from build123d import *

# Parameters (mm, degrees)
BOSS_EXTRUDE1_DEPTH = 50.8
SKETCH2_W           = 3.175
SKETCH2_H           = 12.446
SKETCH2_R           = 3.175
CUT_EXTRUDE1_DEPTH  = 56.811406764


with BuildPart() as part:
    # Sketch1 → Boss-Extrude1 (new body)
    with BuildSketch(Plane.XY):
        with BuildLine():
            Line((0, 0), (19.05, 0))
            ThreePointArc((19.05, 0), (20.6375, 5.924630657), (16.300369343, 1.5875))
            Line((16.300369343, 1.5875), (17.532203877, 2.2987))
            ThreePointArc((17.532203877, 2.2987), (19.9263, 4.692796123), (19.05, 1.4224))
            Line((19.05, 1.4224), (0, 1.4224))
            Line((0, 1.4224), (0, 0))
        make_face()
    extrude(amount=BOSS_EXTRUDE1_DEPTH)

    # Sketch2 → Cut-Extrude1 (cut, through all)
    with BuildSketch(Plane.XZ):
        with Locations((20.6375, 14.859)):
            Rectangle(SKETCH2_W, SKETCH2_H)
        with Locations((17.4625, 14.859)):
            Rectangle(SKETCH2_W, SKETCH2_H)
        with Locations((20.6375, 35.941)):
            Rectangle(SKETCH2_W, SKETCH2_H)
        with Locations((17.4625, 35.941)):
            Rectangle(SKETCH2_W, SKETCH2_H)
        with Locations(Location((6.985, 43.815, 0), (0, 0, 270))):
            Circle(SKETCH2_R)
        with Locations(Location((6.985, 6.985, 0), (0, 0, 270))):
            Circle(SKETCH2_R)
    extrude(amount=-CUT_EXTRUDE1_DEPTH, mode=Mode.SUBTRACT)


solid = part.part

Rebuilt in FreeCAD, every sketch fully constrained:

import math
import FreeCAD as App
import Part
import Sketcher

V = App.Vector
Q = App.Units.Quantity

doc = App.newDocument("Part")
params = doc.addObject("Spreadsheet::Sheet", "Params")
for row, (alias, value) in enumerate([
    ("sketch1_radius", "0.125 in"),
    ("sketch1_radius2", "0.069 in"),
    ("sketch1_width", "0.75 in"),
    ("pad1_length", "2 in"),
    ("sketch2_diameter", "0.25 in"),
    ("sketch2_width", "0.25 in"),
    ("sketch2_height", "0.49 in"),
], start=1):
    params.set(f"A{row}", alias)
    params.set(f"B{row}", "=" + value)
    params.setAlias(f"B{row}", alias)

body = doc.addObject("PartDesign::Body", "Body")

# Sketch on XY plane
sketch1 = body.newObject("Sketcher::SketchObject", "Sketch")
sketch1.AttachmentSupport = (doc.getObject("XY_Plane"), [""])
sketch1.MapMode = "FlatFace"
sketch1.addGeometry([
    Part.LineSegment(V(0, 0, 0), V(19.1, 0, 0)),  # 0
    Part.ArcOfCircle(Part.Circle(V(19.1, 3.2, 0), V(0, 0, 1), 3.2), math.radians(-90), math.radians(210)),  # 1
    Part.LineSegment(V(16.3, 1.6, 0), V(17.5, 2.3, 0)),  # 2
    Part.ArcOfCircle(Part.Circle(V(19.1, 3.2, 0), V(0, 0, 1), 1.8), math.radians(-90), math.radians(210)),  # 3
    Part.LineSegment(V(19.1, 1.4, 0), V(0, 1.4, 0)),  # 4
    Part.LineSegment(V(0, 1.4, 0), V(0, 0, 0)),  # 5
], False)
sketch1.addConstraint([
    Sketcher.Constraint("Tangent", 0, 2, 1, 1),
    Sketcher.Constraint("Coincident", 1, 2, 2, 1),
    Sketcher.Constraint("Coincident", 2, 2, 3, 2),
    Sketcher.Constraint("Tangent", 3, 1, 4, 1),
    Sketcher.Constraint("Coincident", 4, 2, 5, 1),
    Sketcher.Constraint("Coincident", 5, 2, 0, 1),
    Sketcher.Constraint("Horizontal", 0),
    Sketcher.Constraint("Horizontal", 4),
    Sketcher.Constraint("Vertical", 5),
    Sketcher.Constraint("Coincident", 5, 2, -1, 1),
    Sketcher.Constraint("Coincident", 3, 3, 1, 3),
    Sketcher.Constraint("Angle", 2, Q("30 deg")),
    Sketcher.Constraint("Radius", 1, Q("0.125 in")),
    Sketcher.Constraint("Radius", 3, Q("0.069 in")),
    Sketcher.Constraint("DistanceX", 0, 1, 0, 2, Q("0.75 in")),
    Sketcher.Constraint("DistanceY", -1, 1, 1, 2, Q("0.0625 in")),
])
sketch1.setExpression("Constraints[12]", "Params.sketch1_radius")
sketch1.setExpression("Constraints[13]", "Params.sketch1_radius2")
sketch1.setExpression("Constraints[14]", "Params.sketch1_width")
pad1 = body.newObject("PartDesign::Pad", "Pad")
pad1.Profile = sketch1
pad1.setExpression("Length", "Params.pad1_length")

# Sketch on XZ plane
sketch2 = body.newObject("Sketcher::SketchObject", "Sketch001")
sketch2.AttachmentSupport = (doc.getObject("XZ_Plane"), [""])
sketch2.MapMode = "FlatFace"
sketch2.addGeometry([
    Part.LineSegment(V(22.2, 8.6, 0), V(22.2, 21.1, 0)),  # 0
    Part.LineSegment(V(22.2, 21.1, 0), V(15.9, 21.1, 0)),  # 1
    Part.LineSegment(V(15.9, 21.1, 0), V(15.9, 8.6, 0)),  # 2
    Part.LineSegment(V(15.9, 8.6, 0), V(22.2, 8.6, 0)),  # 3
    Part.LineSegment(V(22.2, 29.7, 0), V(22.2, 42.2, 0)),  # 4
    Part.LineSegment(V(22.2, 42.2, 0), V(15.9, 42.2, 0)),  # 5
    Part.LineSegment(V(15.9, 42.2, 0), V(15.9, 29.7, 0)),  # 6
    Part.LineSegment(V(15.9, 29.7, 0), V(22.2, 29.7, 0)),  # 7
    Part.Circle(V(7, 43.8, 0), V(0, 0, 1), 3.2),  # 8
    Part.Circle(V(7, 7, 0), V(0, 0, 1), 3.2),  # 9
], False)
sketch2.addConstraint([
    Sketcher.Constraint("Coincident", 0, 2, 1, 1),
    Sketcher.Constraint("Coincident", 1, 2, 2, 1),
    Sketcher.Constraint("Coincident", 2, 2, 3, 1),
    Sketcher.Constraint("Coincident", 3, 2, 0, 1),
    Sketcher.Constraint("Coincident", 4, 2, 5, 1),
    Sketcher.Constraint("Coincident", 5, 2, 6, 1),
    Sketcher.Constraint("Coincident", 6, 2, 7, 1),
    Sketcher.Constraint("Coincident", 7, 2, 4, 1),
    Sketcher.Constraint("Vertical", 0),
    Sketcher.Constraint("Horizontal", 1),
    Sketcher.Constraint("Vertical", 2),
    Sketcher.Constraint("Horizontal", 3),
    Sketcher.Constraint("Vertical", 4),
    Sketcher.Constraint("Horizontal", 5),
    Sketcher.Constraint("Vertical", 6),
    Sketcher.Constraint("Horizontal", 7),
    Sketcher.Constraint("Equal", 8, 9),
    Sketcher.Constraint("Vertical", 8, 3, 9, 3),
    Sketcher.Constraint("Vertical", 3, 2, 4, 2),
    Sketcher.Constraint("Vertical", 2, 2, 5, 2),
    Sketcher.Constraint("Equal", 2, 4),
    Sketcher.Constraint("Diameter", 8, Q("0.25 in")),
    Sketcher.Constraint("DistanceX", 1, 2, 1, 1, Q("0.25 in")),
    Sketcher.Constraint("DistanceY", 0, 1, 0, 2, Q("0.49 in")),
    Sketcher.Constraint("DistanceX", 9, 3, 0, 2, Q("0.6 in")),
    Sketcher.Constraint("DistanceY", -1, 1, 0, 2, Q("0.83 in")),
    Sketcher.Constraint("DistanceY", -1, 1, 4, 2, Q("1.66 in")),
    Sketcher.Constraint("DistanceY", 9, 3, 8, 3, Q("1.45 in")),
    Sketcher.Constraint("DistanceX", -1, 1, 8, 3, Q("0.275 in")),
    Sketcher.Constraint("DistanceY", -1, 1, 8, 3, Q("1.725 in")),
])
sketch2.setExpression("Constraints[21]", "Params.sketch2_diameter")
sketch2.setExpression("Constraints[22]", "Params.sketch2_width")
sketch2.setExpression("Constraints[23]", "Params.sketch2_height")
pocket1 = body.newObject("PartDesign::Pocket", "Pocket")
pocket1.Profile = sketch2
pocket1.Type = "ThroughAll"

doc.recompute()
